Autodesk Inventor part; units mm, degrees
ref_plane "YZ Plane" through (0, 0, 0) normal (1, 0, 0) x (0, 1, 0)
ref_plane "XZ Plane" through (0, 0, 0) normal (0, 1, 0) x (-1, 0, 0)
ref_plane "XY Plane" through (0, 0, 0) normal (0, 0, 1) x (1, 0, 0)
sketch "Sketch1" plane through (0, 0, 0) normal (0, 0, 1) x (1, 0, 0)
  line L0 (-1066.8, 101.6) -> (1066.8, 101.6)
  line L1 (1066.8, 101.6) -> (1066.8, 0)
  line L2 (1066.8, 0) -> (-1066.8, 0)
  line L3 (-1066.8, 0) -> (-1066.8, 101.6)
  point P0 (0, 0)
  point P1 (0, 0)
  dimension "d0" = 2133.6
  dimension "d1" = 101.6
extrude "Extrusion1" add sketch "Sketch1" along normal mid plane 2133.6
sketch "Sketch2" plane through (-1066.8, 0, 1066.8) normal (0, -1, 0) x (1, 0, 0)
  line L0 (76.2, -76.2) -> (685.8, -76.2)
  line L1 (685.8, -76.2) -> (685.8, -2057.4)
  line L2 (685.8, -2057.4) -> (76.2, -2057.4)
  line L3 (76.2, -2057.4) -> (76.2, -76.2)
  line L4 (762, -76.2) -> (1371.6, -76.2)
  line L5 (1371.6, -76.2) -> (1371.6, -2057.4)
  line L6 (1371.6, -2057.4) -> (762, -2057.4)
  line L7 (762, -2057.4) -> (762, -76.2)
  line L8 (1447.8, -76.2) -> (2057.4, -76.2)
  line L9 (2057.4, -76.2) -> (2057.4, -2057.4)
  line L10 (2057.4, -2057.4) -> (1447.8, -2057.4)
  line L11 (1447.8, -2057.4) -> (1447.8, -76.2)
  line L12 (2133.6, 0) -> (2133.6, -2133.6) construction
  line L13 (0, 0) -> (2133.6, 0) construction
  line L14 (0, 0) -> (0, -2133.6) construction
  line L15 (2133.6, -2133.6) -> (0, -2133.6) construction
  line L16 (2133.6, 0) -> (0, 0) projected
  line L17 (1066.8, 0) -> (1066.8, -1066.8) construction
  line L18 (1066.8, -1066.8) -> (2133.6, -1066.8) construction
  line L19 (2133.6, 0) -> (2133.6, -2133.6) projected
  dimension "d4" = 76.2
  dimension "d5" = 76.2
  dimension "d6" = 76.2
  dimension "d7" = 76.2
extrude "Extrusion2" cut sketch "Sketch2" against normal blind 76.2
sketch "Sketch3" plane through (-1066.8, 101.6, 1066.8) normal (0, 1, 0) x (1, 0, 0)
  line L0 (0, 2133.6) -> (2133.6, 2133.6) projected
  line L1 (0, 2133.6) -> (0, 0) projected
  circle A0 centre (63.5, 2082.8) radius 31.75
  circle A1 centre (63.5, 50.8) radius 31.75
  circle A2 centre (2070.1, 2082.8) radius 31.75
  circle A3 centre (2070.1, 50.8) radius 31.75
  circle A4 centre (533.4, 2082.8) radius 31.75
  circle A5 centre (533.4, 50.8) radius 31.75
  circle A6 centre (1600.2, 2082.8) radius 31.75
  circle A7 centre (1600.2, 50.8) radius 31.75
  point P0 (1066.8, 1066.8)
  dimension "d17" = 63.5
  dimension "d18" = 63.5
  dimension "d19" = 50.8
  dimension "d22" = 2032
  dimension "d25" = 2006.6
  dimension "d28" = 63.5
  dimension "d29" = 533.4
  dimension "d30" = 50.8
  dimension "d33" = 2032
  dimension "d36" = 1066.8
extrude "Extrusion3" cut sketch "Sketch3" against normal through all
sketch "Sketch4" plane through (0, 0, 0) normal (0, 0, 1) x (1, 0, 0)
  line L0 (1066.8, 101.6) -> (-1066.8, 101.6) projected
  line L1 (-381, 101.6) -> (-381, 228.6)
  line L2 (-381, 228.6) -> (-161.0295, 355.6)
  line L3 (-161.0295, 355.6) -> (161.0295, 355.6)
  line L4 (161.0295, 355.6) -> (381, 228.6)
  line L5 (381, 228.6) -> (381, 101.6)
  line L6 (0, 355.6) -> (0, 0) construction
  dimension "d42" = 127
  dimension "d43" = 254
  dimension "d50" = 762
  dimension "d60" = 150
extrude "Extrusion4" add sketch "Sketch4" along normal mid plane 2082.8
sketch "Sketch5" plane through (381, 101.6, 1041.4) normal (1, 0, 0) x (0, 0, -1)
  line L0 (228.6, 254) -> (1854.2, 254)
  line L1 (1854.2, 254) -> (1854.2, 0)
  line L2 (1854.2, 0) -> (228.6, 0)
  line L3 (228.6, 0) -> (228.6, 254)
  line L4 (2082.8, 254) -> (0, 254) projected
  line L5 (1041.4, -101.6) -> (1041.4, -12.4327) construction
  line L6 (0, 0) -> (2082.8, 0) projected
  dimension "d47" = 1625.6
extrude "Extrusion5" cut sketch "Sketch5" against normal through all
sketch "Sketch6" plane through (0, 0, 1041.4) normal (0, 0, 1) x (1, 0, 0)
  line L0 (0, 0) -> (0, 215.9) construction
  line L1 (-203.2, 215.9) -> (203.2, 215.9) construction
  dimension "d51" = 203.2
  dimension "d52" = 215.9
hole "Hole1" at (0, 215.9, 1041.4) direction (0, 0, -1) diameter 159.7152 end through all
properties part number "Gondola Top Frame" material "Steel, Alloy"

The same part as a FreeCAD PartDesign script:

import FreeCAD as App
import Part
import Sketcher
Q = App.Units.Quantity

doc = App.newDocument("Part")
body = doc.addObject("PartDesign::Body", "Body")

sketch1 = body.newObject("Sketcher::SketchObject", "Sketch")
sketch1.AttachmentSupport = (doc.getObject("XY_Plane"), [""])
sketch1.MapMode = "FlatFace"
sketch1.addGeometry(Part.LineSegment(App.Vector(1066.8, 101.6, 0), App.Vector(-1066.8, 101.6, 0)), False)
sketch1.addGeometry(Part.LineSegment(App.Vector(-1066.8, 101.6, 0), App.Vector(-1066.8, 0, 0)), False)
sketch1.addGeometry(Part.LineSegment(App.Vector(-1066.8, 0, 0), App.Vector(1066.8, 0, 0)), False)
sketch1.addGeometry(Part.LineSegment(App.Vector(1066.8, 0, 0), App.Vector(1066.8, 101.6, 0)), False)
sketch1.addConstraint(Sketcher.Constraint("Coincident", 0, 2, 1, 1))
sketch1.addConstraint(Sketcher.Constraint("Coincident", 1, 2, 2, 1))
sketch1.addConstraint(Sketcher.Constraint("Coincident", 2, 2, 3, 1))
sketch1.addConstraint(Sketcher.Constraint("Coincident", 3, 2, 0, 1))
sketch1.addConstraint(Sketcher.Constraint("Horizontal", 0))
sketch1.addConstraint(Sketcher.Constraint("Vertical", 1))
sketch1.addConstraint(Sketcher.Constraint("Horizontal", 2))
sketch1.addConstraint(Sketcher.Constraint("Vertical", 3))
sketch1.addConstraint(Sketcher.Constraint("Symmetric", 1, 2, 2, 2, -1, 1))
sketch1.addConstraint(Sketcher.Constraint("DistanceX", 0, 2, 0, 1, Q("84 in")))
sketch1.addConstraint(Sketcher.Constraint("DistanceY", 1, 2, 1, 1, Q("4 in")))
pad1 = body.newObject("PartDesign::Pad", "Pad")
pad1.Profile = sketch1
pad1.Length = Q("84 in")
pad1.Midplane = True

sketch2 = body.newObject("Sketcher::SketchObject", "Sketch001")
sketch2.AttachmentSupport = (doc.getObject("XZ_Plane"), [""])
sketch2.MapMode = "FlatFace"
sketch2.addGeometry(Part.LineSegment(App.Vector(-381, 990.6, 0), App.Vector(-990.6, 990.6, 0)), False)
sketch2.addGeometry(Part.LineSegment(App.Vector(-990.6, 990.6, 0), App.Vector(-990.6, -990.6, 0)), False)
sketch2.addGeometry(Part.LineSegment(App.Vector(-990.6, -990.6, 0), App.Vector(-381, -990.6, 0)), False)
sketch2.addGeometry(Part.LineSegment(App.Vector(-381, -990.6, 0), App.Vector(-381, 990.6, 0)), False)
sketch2.addGeometry(Part.LineSegment(App.Vector(304.8, 990.6, 0), App.Vector(-304.8, 990.6, 0)), False)
sketch2.addGeometry(Part.LineSegment(App.Vector(-304.8, 990.6, 0), App.Vector(-304.8, -990.6, 0)), False)
sketch2.addGeometry(Part.LineSegment(App.Vector(-304.8, -990.6, 0), App.Vector(304.8, -990.6, 0)), False)
sketch2.addGeometry(Part.LineSegment(App.Vector(304.8, -990.6, 0), App.Vector(304.8, 990.6, 0)), False)
sketch2.addGeometry(Part.LineSegment(App.Vector(990.6, 990.6, 0), App.Vector(381, 990.6, 0)), False)
sketch2.addGeometry(Part.LineSegment(App.Vector(381, 990.6, 0), App.Vector(381, -990.6, 0)), False)
sketch2.addGeometry(Part.LineSegment(App.Vector(381, -990.6, 0), App.Vector(990.6, -990.6, 0)), False)
sketch2.addGeometry(Part.LineSegment(App.Vector(990.6, -990.6, 0), App.Vector(990.6, 990.6, 0)), False)
sketch2.addConstraint(Sketcher.Constraint("Coincident", 0, 2, 1, 1))
sketch2.addConstraint(Sketcher.Constraint("Coincident", 1, 2, 2, 1))
sketch2.addConstraint(Sketcher.Constraint("Coincident", 2, 2, 3, 1))
sketch2.addConstraint(Sketcher.Constraint("Coincident", 3, 2, 0, 1))
sketch2.addConstraint(Sketcher.Constraint("Coincident", 4, 2, 5, 1))
sketch2.addConstraint(Sketcher.Constraint("Coincident", 5, 2, 6, 1))
sketch2.addConstraint(Sketcher.Constraint("Coincident", 6, 2, 7, 1))
sketch2.addConstraint(Sketcher.Constraint("Coincident", 7, 2, 4, 1))
sketch2.addConstraint(Sketcher.Constraint("Coincident", 8, 2, 9, 1))
sketch2.addConstraint(Sketcher.Constraint("Coincident", 9, 2, 10, 1))
sketch2.addConstraint(Sketcher.Constraint("Coincident", 10, 2, 11, 1))
sketch2.addConstraint(Sketcher.Constraint("Coincident", 11, 2, 8, 1))
sketch2.addConstraint(Sketcher.Constraint("Horizontal", 0))
sketch2.addConstraint(Sketcher.Constraint("Vertical", 1))
sketch2.addConstraint(Sketcher.Constraint("Horizontal", 2))
sketch2.addConstraint(Sketcher.Constraint("Vertical", 3))
sketch2.addConstraint(Sketcher.Constraint("Horizontal", 4))
sketch2.addConstraint(Sketcher.Constraint("Vertical", 5))
sketch2.addConstraint(Sketcher.Constraint("Horizontal", 6))
sketch2.addConstraint(Sketcher.Constraint("Vertical", 7))
sketch2.addConstraint(Sketcher.Constraint("Horizontal", 8))
sketch2.addConstraint(Sketcher.Constraint("Vertical", 9))
sketch2.addConstraint(Sketcher.Constraint("Horizontal", 10))
sketch2.addConstraint(Sketcher.Constraint("Vertical", 11))
sketch2.addConstraint(Sketcher.Constraint("Symmetric", 4, 2, 6, 2, -1, 1))
sketch2.addConstraint(Sketcher.Constraint("Symmetric", 2, 2, 8, 2, -1, 1))
sketch2.addConstraint(Sketcher.Constraint("Symmetric", 0, 2, 10, 2, -1, 1))
sketch2.addConstraint(Sketcher.Constraint("Horizontal", 3, 2, 4, 2))
sketch2.addConstraint(Sketcher.Constraint("Horizontal", 2, 2, 5, 2))
sketch2.addConstraint(Sketcher.Constraint("Equal", 2, 4))
sketch2.addConstraint(Sketcher.Constraint("DistanceX", 3, 2, 4, 2, Q("3 in")))
sketch2.addConstraint(Sketcher.Constraint("DistanceX", 0, 2, 0, 1, Q("24 in")))
sketch2.addConstraint(Sketcher.Constraint("DistanceY", 1, 2, 1, 1, Q("78 in")))
pocket1 = body.newObject("PartDesign::Pocket", "Pocket")
pocket1.Profile = sketch2
pocket1.Length = Q("3 in")

sketch3 = body.newObject("Sketcher::SketchObject", "Sketch002")
sketch3.AttachmentSupport = (doc.getObject("XZ_Plane"), [""])
sketch3.MapMode = "FlatFace"
sketch3.AttachmentOffset = App.Placement(App.Vector(0, 0, -4 * 25.4), App.Rotation())
sketch3.addGeometry(Part.Circle(App.Vector(-1003.3, -1016, 0), App.Vector(0, 0, 1), 31.75), False)
sketch3.addGeometry(Part.Circle(App.Vector(-1003.3, 1016, 0), App.Vector(0, 0, 1), 31.75), False)
sketch3.addGeometry(Part.Circle(App.Vector(1003.3, -1016, 0), App.Vector(0, 0, 1), 31.75), False)
sketch3.addGeometry(Part.Circle(App.Vector(1003.3, 1016, 0), App.Vector(0, 0, 1), 31.75), False)
sketch3.addGeometry(Part.Circle(App.Vector(-533.4, -1016, 0), App.Vector(0, 0, 1), 31.75), False)
sketch3.addGeometry(Part.Circle(App.Vector(-533.4, 1016, 0), App.Vector(0, 0, 1), 31.75), False)
sketch3.addGeometry(Part.Circle(App.Vector(533.4, -1016, 0), App.Vector(0, 0, 1), 31.75), False)
sketch3.addGeometry(Part.Circle(App.Vector(533.4, 1016, 0), App.Vector(0, 0, 1), 31.75), False)
sketch3.addConstraint(Sketcher.Constraint("Equal", 0, 1))
sketch3.addConstraint(Sketcher.Constraint("Equal", 1, 2))
sketch3.addConstraint(Sketcher.Constraint("Equal", 2, 3))
sketch3.addConstraint(Sketcher.Constraint("Equal", 3, 4))
sketch3.addConstraint(Sketcher.Constraint("Equal", 4, 5))
sketch3.addConstraint(Sketcher.Constraint("Equal", 5, 6))
sketch3.addConstraint(Sketcher.Constraint("Equal", 6, 7))
sketch3.addConstraint(Sketcher.Constraint("Symmetric", 1, 3, 2, 3, -1, 1))
sketch3.addConstraint(Sketcher.Constraint("Symmetric", 0, 3, 3, 3, -1, 1))
sketch3.addConstraint(Sketcher.Constraint("Symmetric", 5, 3, 6, 3, -1, 1))
sketch3.addConstraint(Sketcher.Constraint("Symmetric", 4, 3, 7, 3, -1, 1))
sketch3.addConstraint(Sketcher.Constraint("Symmetric", 0, 3, 2, 3, -2))
sketch3.addConstraint(Sketcher.Constraint("Symmetric", 4, 3, 6, 3, -2))
sketch3.addConstraint(Sketcher.Constraint("Horizontal", 2, 3, 4, 3))
sketch3.addConstraint(Sketcher.Constraint("Diameter", 0, Q("2.5 in")))
sketch3.addConstraint(Sketcher.Constraint("DistanceX", 4, 3, -1, 1, Q("21 in")))
sketch3.addConstraint(Sketcher.Constraint("DistanceY", 0, 3, 1, 3, Q("80 in")))
sketch3.addConstraint(Sketcher.Constraint("DistanceX", 0, 3, 2, 3, Q("79 in")))
pocket2 = body.newObject("PartDesign::Pocket", "Pocket001")
pocket2.Profile = sketch3
pocket2.Type = "ThroughAll"
pocket2.Reversed = True

sketch4 = body.newObject("Sketcher::SketchObject", "Sketch003")
sketch4.AttachmentSupport = (doc.getObject("XY_Plane"), [""])
sketch4.MapMode = "FlatFace"
sketch4.addGeometry(Part.LineSegment(App.Vector(-381, 101.6, 0), App.Vector(381, 101.6, 0)), False)
sketch4.addGeometry(Part.LineSegment(App.Vector(381, 101.6, 0), App.Vector(381, 228.6, 0)), False)
sketch4.addGeometry(Part.LineSegment(App.Vector(381, 228.6, 0), App.Vector(161.0295, 355.6, 0)), False)
sketch4.addGeometry(Part.LineSegment(App.Vector(161.0295, 355.6, 0), App.Vector(-161.0295, 355.6, 0)), False)
sketch4.addGeometry(Part.LineSegment(App.Vector(-161.0295, 355.6, 0), App.Vector(-381, 228.6, 0)), False)
sketch4.addGeometry(Part.LineSegment(App.Vector(-381, 228.6, 0), App.Vector(-381, 101.6, 0)), False)
sketch4.addConstraint(Sketcher.Constraint("Coincident", 0, 2, 1, 1))
sketch4.addConstraint(Sketcher.Constraint("Coincident", 1, 2, 2, 1))
sketch4.addConstraint(Sketcher.Constraint("Coincident", 2, 2, 3, 1))
sketch4.addConstraint(Sketcher.Constraint("Coincident", 3, 2, 4, 1))
sketch4.addConstraint(Sketcher.Constraint("Coincident", 4, 2, 5, 1))
sketch4.addConstraint(Sketcher.Constraint("Coincident", 5, 2, 0, 1))
sketch4.addConstraint(Sketcher.Constraint("Horizontal", 0))
sketch4.addConstraint(Sketcher.Constraint("Vertical", 1))
sketch4.addConstraint(Sketcher.Constraint("Horizontal", 3))
sketch4.addConstraint(Sketcher.Constraint("Vertical", 5))
sketch4.addConstraint(Sketcher.Constraint("Symmetric", 1, 2, 4, 2, -2))
sketch4.addConstraint(Sketcher.Constraint("Equal", 2, 4))
sketch4.addConstraint(Sketcher.Constraint("DistanceX", 0, 1, 0, 2, Q("30 in")))
sketch4.addConstraint(Sketcher.Constraint("DistanceY", 1, 1, 1, 2, Q("5 in")))
sketch4.addConstraint(Sketcher.Constraint("Distance", 2, Q("10 in")))
sketch4.addConstraint(Sketcher.Constraint("Angle", 2, Q("150 deg")))
sketch4.addConstraint(Sketcher.Constraint("DistanceY", -1, 1, 0, 2, Q("4 in")))
pad2 = body.newObject("PartDesign::Pad", "Pad001")
pad2.Profile = sketch4
pad2.Length = Q("82 in")
pad2.Midplane = True

sketch5 = body.newObject("Sketcher::SketchObject", "Sketch004")
sketch5.AttachmentSupport = (doc.getObject("YZ_Plane"), [""])
sketch5.MapMode = "FlatFace"
sketch5.AttachmentOffset = App.Placement(App.Vector(0, 0, 15 * 25.4), App.Rotation())
sketch5.addGeometry(Part.LineSegment(App.Vector(355.6, -812.8, 0), App.Vector(355.6, 812.8, 0)), False)
sketch5.addGeometry(Part.LineSegment(App.Vector(355.6, 812.8, 0), App.Vector(101.6, 812.8, 0)), False)
sketch5.addGeometry(Part.LineSegment(App.Vector(101.6, 812.8, 0), App.Vector(101.6, -812.8, 0)), False)
sketch5.addGeometry(Part.LineSegment(App.Vector(101.6, -812.8, 0), App.Vector(355.6, -812.8, 0)), False)
sketch5.addConstraint(Sketcher.Constraint("Coincident", 0, 2, 1, 1))
sketch5.addConstraint(Sketcher.Constraint("Coincident", 1, 2, 2, 1))
sketch5.addConstraint(Sketcher.Constraint("Coincident", 2, 2, 3, 1))
sketch5.addConstraint(Sketcher.Constraint("Coincident", 3, 2, 0, 1))
sketch5.addConstraint(Sketcher.Constraint("Vertical", 0))
sketch5.addConstraint(Sketcher.Constraint("Horizontal", 1))
sketch5.addConstraint(Sketcher.Constraint("Vertical", 2))
sketch5.addConstraint(Sketcher.Constraint("Horizontal", 3))
sketch5.addConstraint(Sketcher.Constraint("DistanceY", 0, 1, 0, 2, Q("64 in")))
sketch5.addConstraint(Sketcher.Constraint("DistanceX", 1, 2, 1, 1, Q("10 in")))
sketch5.addConstraint(Sketcher.Constraint("DistanceX", -1, 1, 0, 2, Q("14 in")))
sketch5.addConstraint(Sketcher.Constraint("DistanceY", -1, 1, 0, 2, Q("32 in")))
pocket3 = body.newObject("PartDesign::Pocket", "Pocket002")
pocket3.Profile = sketch5
pocket3.Type = "ThroughAll"

sketch6 = body.newObject("Sketcher::SketchObject", "Sketch005")
sketch6.AttachmentSupport = (doc.getObject("XY_Plane"), [""])
sketch6.MapMode = "FlatFace"
sketch6.AttachmentOffset = App.Placement(App.Vector(0, 0, 41 * 25.4), App.Rotation())
sketch6.addGeometry(Part.Circle(App.Vector(0, 215.9, 0), App.Vector(0, 0, 1), 79.8576), False)
sketch6.addConstraint(Sketcher.Constraint("PointOnObject", 0, 3, -2))
sketch6.addConstraint(Sketcher.Constraint("Diameter", 0, Q("6.288 in")))
sketch6.addConstraint(Sketcher.Constraint("DistanceY", -1, 1, 0, 3, Q("8.5 in")))
doc.recompute()
hole = body.newObject("PartDesign::Hole", "Hole")
hole.Profile = sketch6
hole.ThreadType = "None"
hole.Diameter = Q("6.288 in")
hole.DepthType = "ThroughAll"

doc.recompute()
